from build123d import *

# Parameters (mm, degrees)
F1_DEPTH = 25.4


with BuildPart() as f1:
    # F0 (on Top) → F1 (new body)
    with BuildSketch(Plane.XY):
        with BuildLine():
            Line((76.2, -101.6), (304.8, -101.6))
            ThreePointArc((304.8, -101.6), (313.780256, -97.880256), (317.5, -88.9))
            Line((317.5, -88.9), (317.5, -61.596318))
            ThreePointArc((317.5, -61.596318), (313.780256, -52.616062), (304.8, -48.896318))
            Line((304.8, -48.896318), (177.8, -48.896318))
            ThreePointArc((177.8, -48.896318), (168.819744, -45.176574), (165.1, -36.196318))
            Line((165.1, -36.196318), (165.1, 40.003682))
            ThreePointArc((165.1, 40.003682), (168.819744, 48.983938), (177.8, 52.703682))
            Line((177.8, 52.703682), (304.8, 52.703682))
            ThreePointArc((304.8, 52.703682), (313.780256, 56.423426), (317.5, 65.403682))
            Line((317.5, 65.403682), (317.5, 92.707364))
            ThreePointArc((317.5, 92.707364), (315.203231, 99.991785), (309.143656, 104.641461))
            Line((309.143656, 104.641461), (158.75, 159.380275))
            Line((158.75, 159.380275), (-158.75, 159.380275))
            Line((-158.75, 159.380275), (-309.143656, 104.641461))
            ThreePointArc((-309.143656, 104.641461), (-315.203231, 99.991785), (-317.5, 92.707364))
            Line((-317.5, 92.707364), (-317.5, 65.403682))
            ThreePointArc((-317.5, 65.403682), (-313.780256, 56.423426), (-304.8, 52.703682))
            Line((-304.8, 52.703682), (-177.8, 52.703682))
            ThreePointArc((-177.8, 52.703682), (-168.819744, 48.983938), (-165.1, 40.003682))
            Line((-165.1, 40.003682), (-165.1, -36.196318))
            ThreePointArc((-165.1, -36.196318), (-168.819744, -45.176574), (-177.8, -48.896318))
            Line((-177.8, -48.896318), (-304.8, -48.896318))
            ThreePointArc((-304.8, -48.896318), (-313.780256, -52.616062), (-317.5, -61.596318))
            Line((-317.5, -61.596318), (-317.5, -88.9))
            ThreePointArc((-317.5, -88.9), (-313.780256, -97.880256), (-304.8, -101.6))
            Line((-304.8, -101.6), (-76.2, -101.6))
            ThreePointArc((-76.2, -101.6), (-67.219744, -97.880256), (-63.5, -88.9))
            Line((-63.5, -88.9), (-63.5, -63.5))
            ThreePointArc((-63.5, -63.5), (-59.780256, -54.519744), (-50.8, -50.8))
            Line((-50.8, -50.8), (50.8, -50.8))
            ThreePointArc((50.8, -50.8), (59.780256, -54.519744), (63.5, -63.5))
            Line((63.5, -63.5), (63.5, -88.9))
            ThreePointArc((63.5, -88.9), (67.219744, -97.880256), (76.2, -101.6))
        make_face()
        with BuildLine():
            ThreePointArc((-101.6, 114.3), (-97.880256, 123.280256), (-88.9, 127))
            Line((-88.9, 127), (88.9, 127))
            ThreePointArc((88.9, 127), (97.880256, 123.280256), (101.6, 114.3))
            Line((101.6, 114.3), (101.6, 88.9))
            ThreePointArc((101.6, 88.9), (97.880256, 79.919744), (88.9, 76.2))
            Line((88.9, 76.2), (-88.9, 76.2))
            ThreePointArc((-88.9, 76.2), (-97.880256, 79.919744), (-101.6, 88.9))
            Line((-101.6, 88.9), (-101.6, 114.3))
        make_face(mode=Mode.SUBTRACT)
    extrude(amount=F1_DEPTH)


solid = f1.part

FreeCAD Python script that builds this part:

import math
import FreeCAD as App
import Part
import Sketcher
from FreeCAD import Vector
Q = App.Units.Quantity

doc = App.newDocument("Part")
body = doc.addObject("PartDesign::Body", "Body")

# Sketch on XY plane
sketch1 = doc.addObject("Sketcher::SketchObject", "Sketch")
body.addObject(sketch1)
sketch1.AttachmentSupport = (doc.XY_Plane, [""])
sketch1.MapMode = "FlatFace"
sketch1.addGeometry(Part.LineSegment(Vector(76, -102, 0), Vector(305, -102, 0)), False)
sketch1.addGeometry(Part.ArcOfCircle(Part.Circle(Vector(305, -89, 0), Vector(0, 0, 1), 13), math.radians(-90), math.radians(0)), False)
sketch1.addGeometry(Part.LineSegment(Vector(318, -89, 0), Vector(318, -62, 0)), False)
sketch1.addGeometry(Part.ArcOfCircle(Part.Circle(Vector(305, -62, 0), Vector(0, 0, 1), 13), math.radians(0), math.radians(90)), False)
sketch1.addGeometry(Part.LineSegment(Vector(305, -49, 0), Vector(178, -49, 0)), False)
sketch1.addGeometry(Part.ArcOfCircle(Part.Circle(Vector(178, -36, 0), Vector(0, 0, 1), 13), math.radians(-180), math.radians(-90)), False)
sketch1.addGeometry(Part.LineSegment(Vector(165, -36, 0), Vector(165, 40, 0)), False)
sketch1.addGeometry(Part.ArcOfCircle(Part.Circle(Vector(178, 40, 0), Vector(0, 0, 1), 13), math.radians(90), math.radians(180)), False)
sketch1.addGeometry(Part.LineSegment(Vector(178, 53, 0), Vector(305, 53, 0)), False)
sketch1.addGeometry(Part.ArcOfCircle(Part.Circle(Vector(305, 65, 0), Vector(0, 0, 1), 13), math.radians(-90), math.radians(0)), False)
sketch1.addGeometry(Part.LineSegment(Vector(318, 65, 0), Vector(318, 93, 0)), False)
sketch1.addGeometry(Part.ArcOfCircle(Part.Circle(Vector(305, 93, 0), Vector(0, 0, 1), 13), math.radians(0), math.radians(70)), False)
sketch1.addGeometry(Part.LineSegment(Vector(309, 105, 0), Vector(159, 159, 0)), False)
sketch1.addGeometry(Part.LineSegment(Vector(159, 159, 0), Vector(-159, 159, 0)), False)
sketch1.addGeometry(Part.LineSegment(Vector(-159, 159, 0), Vector(-309, 105, 0)), False)
sketch1.addGeometry(Part.ArcOfCircle(Part.Circle(Vector(-305, 93, 0), Vector(0, 0, 1), 13), math.radians(110), math.radians(180)), False)
sketch1.addGeometry(Part.LineSegment(Vector(-318, 93, 0), Vector(-318, 65, 0)), False)
sketch1.addGeometry(Part.ArcOfCircle(Part.Circle(Vector(-305, 65, 0), Vector(0, 0, 1), 13), math.radians(-180), math.radians(-90)), False)
sketch1.addGeometry(Part.LineSegment(Vector(-305, 53, 0), Vector(-178, 53, 0)), False)
sketch1.addGeometry(Part.ArcOfCircle(Part.Circle(Vector(-178, 40, 0), Vector(0, 0, 1), 13), math.radians(0), math.radians(90)), False)
sketch1.addGeometry(Part.LineSegment(Vector(-165, 40, 0), Vector(-165, -36, 0)), False)
sketch1.addGeometry(Part.ArcOfCircle(Part.Circle(Vector(-178, -36, 0), Vector(0, 0, 1), 13), math.radians(-90), math.radians(0)), False)
sketch1.addGeometry(Part.LineSegment(Vector(-178, -49, 0), Vector(-305, -49, 0)), False)
sketch1.addGeometry(Part.ArcOfCircle(Part.Circle(Vector(-305, -62, 0), Vector(0, 0, 1), 13), math.radians(90), math.radians(180)), False)
sketch1.addGeometry(Part.LineSegment(Vector(-318, -62, 0), Vector(-318, -89, 0)), False)
sketch1.addGeometry(Part.ArcOfCircle(Part.Circle(Vector(-305, -89, 0), Vector(0, 0, 1), 13), math.radians(-180), math.radians(-90)), False)
sketch1.addGeometry(Part.LineSegment(Vector(-305, -102, 0), Vector(-76, -102, 0)), False)
sketch1.addGeometry(Part.ArcOfCircle(Part.Circle(Vector(-76, -89, 0), Vector(0, 0, 1), 13), math.radians(-90), math.radians(0)), False)
sketch1.addGeometry(Part.LineSegment(Vector(-64, -89, 0), Vector(-64, -64, 0)), False)
sketch1.addGeometry(Part.ArcOfCircle(Part.Circle(Vector(-51, -64, 0), Vector(0, 0, 1), 13), math.radians(90), math.radians(180)), False)
sketch1.addGeometry(Part.LineSegment(Vector(-51, -51, 0), Vector(51, -51, 0)), False)
sketch1.addGeometry(Part.ArcOfCircle(Part.Circle(Vector(51, -64, 0), Vector(0, 0, 1), 13), math.radians(0), math.radians(90)), False)
sketch1.addGeometry(Part.LineSegment(Vector(64, -64, 0), Vector(64, -89, 0)), False)
sketch1.addGeometry(Part.ArcOfCircle(Part.Circle(Vector(76, -89, 0), Vector(0, 0, 1), 13), math.radians(-180), math.radians(-90)), False)
sketch1.addGeometry(Part.LineSegment(Vector(-102, 89, 0), Vector(-102, 114, 0)), False)
sketch1.addGeometry(Part.ArcOfCircle(Part.Circle(Vector(-89, 114, 0), Vector(0, 0, 1), 13), math.radians(90), math.radians(180)), False)
sketch1.addGeometry(Part.LineSegment(Vector(-89, 127, 0), Vector(89, 127, 0)), False)
sketch1.addGeometry(Part.ArcOfCircle(Part.Circle(Vector(89, 114, 0), Vector(0, 0, 1), 13), math.radians(0), math.radians(90)), False)
sketch1.addGeometry(Part.LineSegment(Vector(102, 114, 0), Vector(102, 89, 0)), False)
sketch1.addGeometry(Part.ArcOfCircle(Part.Circle(Vector(89, 89, 0), Vector(0, 0, 1), 13), math.radians(-90), math.radians(0)), False)
sketch1.addGeometry(Part.LineSegment(Vector(89, 76, 0), Vector(-89, 76, 0)), False)
sketch1.addGeometry(Part.ArcOfCircle(Part.Circle(Vector(-89, 89, 0), Vector(0, 0, 1), 13), math.radians(-180), math.radians(-90)), False)
sketch1.addConstraint(Sketcher.Constraint("Tangent", 0, 2, 1, 1))
sketch1.addConstraint(Sketcher.Constraint("Tangent", 1, 2, 2, 1))
sketch1.addConstraint(Sketcher.Constraint("Tangent", 2, 2, 3, 1))
sketch1.addConstraint(Sketcher.Constraint("Tangent", 3, 2, 4, 1))
sketch1.addConstraint(Sketcher.Constraint("Tangent", 4, 2, 5, 2))
sketch1.addConstraint(Sketcher.Constraint("Tangent", 5, 1, 6, 1))
sketch1.addConstraint(Sketcher.Constraint("Tangent", 6, 2, 7, 2))
sketch1.addConstraint(Sketcher.Constraint("Tangent", 7, 1, 8, 1))
sketch1.addConstraint(Sketcher.Constraint("Tangent", 8, 2, 9, 1))
sketch1.addConstraint(Sketcher.Constraint("Tangent", 9, 2, 10, 1))
sketch1.addConstraint(Sketcher.Constraint("Tangent", 10, 2, 11, 1))
sketch1.addConstraint(Sketcher.Constraint("Tangent", 11, 2, 12, 1))
sketch1.addConstraint(Sketcher.Constraint("Coincident", 12, 2, 13, 1))
sketch1.addConstraint(Sketcher.Constraint("Coincident", 13, 2, 14, 1))
sketch1.addConstraint(Sketcher.Constraint("Tangent", 14, 2, 15, 1))
sketch1.addConstraint(Sketcher.Constraint("Tangent", 15, 2, 16, 1))
sketch1.addConstraint(Sketcher.Constraint("Tangent", 16, 2, 17, 1))
sketch1.addConstraint(Sketcher.Constraint("Tangent", 17, 2, 18, 1))
sketch1.addConstraint(Sketcher.Constraint("Tangent", 18, 2, 19, 2))
sketch1.addConstraint(Sketcher.Constraint("Tangent", 19, 1, 20, 1))
sketch1.addConstraint(Sketcher.Constraint("Tangent", 20, 2, 21, 2))
sketch1.addConstraint(Sketcher.Constraint("Tangent", 21, 1, 22, 1))
sketch1.addConstraint(Sketcher.Constraint("Tangent", 22, 2, 23, 1))
sketch1.addConstraint(Sketcher.Constraint("Tangent", 23, 2, 24, 1))
sketch1.addConstraint(Sketcher.Constraint("Tangent", 24, 2, 25, 1))
sketch1.addConstraint(Sketcher.Constraint("Tangent", 25, 2, 26, 1))
sketch1.addConstraint(Sketcher.Constraint("Tangent", 26, 2, 27, 1))
sketch1.addConstraint(Sketcher.Constraint("Tangent", 27, 2, 28, 1))
sketch1.addConstraint(Sketcher.Constraint("Tangent", 28, 2, 29, 2))
sketch1.addConstraint(Sketcher.Constraint("Tangent", 29, 1, 30, 1))
sketch1.addConstraint(Sketcher.Constraint("Tangent", 30, 2, 31, 2))
sketch1.addConstraint(Sketcher.Constraint("Tangent", 31, 1, 32, 1))
sketch1.addConstraint(Sketcher.Constraint("Tangent", 32, 2, 33, 1))
sketch1.addConstraint(Sketcher.Constraint("Tangent", 33, 2, 0, 1))
sketch1.addConstraint(Sketcher.Constraint("Tangent", 34, 2, 35, 2))
sketch1.addConstraint(Sketcher.Constraint("Tangent", 35, 1, 36, 1))
sketch1.addConstraint(Sketcher.Constraint("Tangent", 36, 2, 37, 2))
sketch1.addConstraint(Sketcher.Constraint("Tangent", 37, 1, 38, 1))
sketch1.addConstraint(Sketcher.Constraint("Tangent", 38, 2, 39, 2))
sketch1.addConstraint(Sketcher.Constraint("Tangent", 39, 1, 40, 1))
sketch1.addConstraint(Sketcher.Constraint("Tangent", 40, 2, 41, 2))
sketch1.addConstraint(Sketcher.Constraint("Tangent", 41, 1, 34, 1))
sketch1.addConstraint(Sketcher.Constraint("Horizontal", 0))
sketch1.addConstraint(Sketcher.Constraint("Vertical", 2))
sketch1.addConstraint(Sketcher.Constraint("Horizontal", 4))
sketch1.addConstraint(Sketcher.Constraint("Vertical", 6))
sketch1.addConstraint(Sketcher.Constraint("Horizontal", 8))
sketch1.addConstraint(Sketcher.Constraint("Vertical", 10))
sketch1.addConstraint(Sketcher.Constraint("Horizontal", 13))
sketch1.addConstraint(Sketcher.Constraint("Vertical", 16))
sketch1.addConstraint(Sketcher.Constraint("Horizontal", 18))
sketch1.addConstraint(Sketcher.Constraint("Vertical", 20))
sketch1.addConstraint(Sketcher.Constraint("Horizontal", 22))
sketch1.addConstraint(Sketcher.Constraint("Vertical", 24))
sketch1.addConstraint(Sketcher.Constraint("Horizontal", 26))
sketch1.addConstraint(Sketcher.Constraint("Vertical", 28))
sketch1.addConstraint(Sketcher.Constraint("Horizontal", 30))
sketch1.addConstraint(Sketcher.Constraint("Vertical", 32))
sketch1.addConstraint(Sketcher.Constraint("Vertical", 34))
sketch1.addConstraint(Sketcher.Constraint("Horizontal", 36))
sketch1.addConstraint(Sketcher.Constraint("Vertical", 38))
sketch1.addConstraint(Sketcher.Constraint("Horizontal", 40))
sketch1.addConstraint(Sketcher.Constraint("Equal", 1, 3))
sketch1.addConstraint(Sketcher.Constraint("Equal", 3, 5))
sketch1.addConstraint(Sketcher.Constraint("Equal", 5, 7))
sketch1.addConstraint(Sketcher.Constraint("Equal", 7, 9))
sketch1.addConstraint(Sketcher.Constraint("Equal", 9, 11))
sketch1.addConstraint(Sketcher.Constraint("Equal", 11, 15))
sketch1.addConstraint(Sketcher.Constraint("Equal", 15, 17))
sketch1.addConstraint(Sketcher.Constraint("Equal", 17, 19))
sketch1.addConstraint(Sketcher.Constraint("Equal", 19, 21))
sketch1.addConstraint(Sketcher.Constraint("Equal", 21, 23))
sketch1.addConstraint(Sketcher.Constraint("Equal", 23, 25))
sketch1.addConstraint(Sketcher.Constraint("Equal", 25, 27))
sketch1.addConstraint(Sketcher.Constraint("Equal", 27, 29))
sketch1.addConstraint(Sketcher.Constraint("Equal", 29, 31))
sketch1.addConstraint(Sketcher.Constraint("Equal", 31, 33))
sketch1.addConstraint(Sketcher.Constraint("Equal", 33, 35))
sketch1.addConstraint(Sketcher.Constraint("Equal", 35, 37))
sketch1.addConstraint(Sketcher.Constraint("Equal", 37, 39))
sketch1.addConstraint(Sketcher.Constraint("Equal", 39, 41))
sketch1.addConstraint(Sketcher.Constraint("Symmetric", 11, 3, 15, 3, -2))
sketch1.addConstraint(Sketcher.Constraint("Symmetric", 7, 3, 19, 3, -2))
sketch1.addConstraint(Sketcher.Constraint("Symmetric", 3, 3, 23, 3, -2))
sketch1.addConstraint(Sketcher.Constraint("Symmetric", 27, 3, 33, 3, -2))
sketch1.addConstraint(Sketcher.Constraint("Vertical", 3, 3, 9, 3))
sketch1.addConstraint(Sketcher.Constraint("Equal", 2, 10))
sketch1.addConstraint(Sketcher.Constraint("Equal", 32, 34))
sketch1.addConstraint(Sketcher.Constraint("Equal", 12, 14))
sketch1.addConstraint(Sketcher.Constraint("Radius", 1, Q("0.5 in")))
sketch1.addConstraint(Sketcher.Constraint("DistanceX", 0, 1, 0, 2, Q("9 in")))
sketch1.addConstraint(Sketcher.Constraint("DistanceX", 4, 2, 4, 1, Q("5 in")))
sketch1.addConstraint(Sketcher.Constraint("DistanceX", 30, 1, 30, 2, Q("4 in")))
sketch1.addConstraint(Sketcher.Constraint("DistanceX", 36, 1, 36, 2, Q("7 in")))
sketch1.addConstraint(Sketcher.Constraint("DistanceY", 6, 1, 6, 2, Q("3 in")))
sketch1.addConstraint(Sketcher.Constraint("DistanceY", 28, 1, 28, 2, Q("1 in")))
sketch1.addConstraint(Sketcher.Constraint("DistanceX", 13, 2, 13, 1, Q("12.5 in")))
sketch1.addConstraint(Sketcher.Constraint("DistanceY", 0, 2, -1, 1, Q("4 in")))
sketch1.addConstraint(Sketcher.Constraint("DistanceX", 34, 2, -1, 1, Q("4 in")))
sketch1.addConstraint(Sketcher.Constraint("DistanceY", -1, 1, 35, 1, Q("5 in")))
sketch1.addConstraint(Sketcher.Constraint("Angle", 12, Q("160 deg")))
sketch1.addConstraint(Sketcher.Constraint("DistanceY", 10, 1, 10, 2, 27.303682))
pad1 = doc.addObject("PartDesign::Pad", "Pad")
body.addObject(pad1)
pad1.Profile = sketch1
pad1.Length = Q("1 in")

doc.recompute()
